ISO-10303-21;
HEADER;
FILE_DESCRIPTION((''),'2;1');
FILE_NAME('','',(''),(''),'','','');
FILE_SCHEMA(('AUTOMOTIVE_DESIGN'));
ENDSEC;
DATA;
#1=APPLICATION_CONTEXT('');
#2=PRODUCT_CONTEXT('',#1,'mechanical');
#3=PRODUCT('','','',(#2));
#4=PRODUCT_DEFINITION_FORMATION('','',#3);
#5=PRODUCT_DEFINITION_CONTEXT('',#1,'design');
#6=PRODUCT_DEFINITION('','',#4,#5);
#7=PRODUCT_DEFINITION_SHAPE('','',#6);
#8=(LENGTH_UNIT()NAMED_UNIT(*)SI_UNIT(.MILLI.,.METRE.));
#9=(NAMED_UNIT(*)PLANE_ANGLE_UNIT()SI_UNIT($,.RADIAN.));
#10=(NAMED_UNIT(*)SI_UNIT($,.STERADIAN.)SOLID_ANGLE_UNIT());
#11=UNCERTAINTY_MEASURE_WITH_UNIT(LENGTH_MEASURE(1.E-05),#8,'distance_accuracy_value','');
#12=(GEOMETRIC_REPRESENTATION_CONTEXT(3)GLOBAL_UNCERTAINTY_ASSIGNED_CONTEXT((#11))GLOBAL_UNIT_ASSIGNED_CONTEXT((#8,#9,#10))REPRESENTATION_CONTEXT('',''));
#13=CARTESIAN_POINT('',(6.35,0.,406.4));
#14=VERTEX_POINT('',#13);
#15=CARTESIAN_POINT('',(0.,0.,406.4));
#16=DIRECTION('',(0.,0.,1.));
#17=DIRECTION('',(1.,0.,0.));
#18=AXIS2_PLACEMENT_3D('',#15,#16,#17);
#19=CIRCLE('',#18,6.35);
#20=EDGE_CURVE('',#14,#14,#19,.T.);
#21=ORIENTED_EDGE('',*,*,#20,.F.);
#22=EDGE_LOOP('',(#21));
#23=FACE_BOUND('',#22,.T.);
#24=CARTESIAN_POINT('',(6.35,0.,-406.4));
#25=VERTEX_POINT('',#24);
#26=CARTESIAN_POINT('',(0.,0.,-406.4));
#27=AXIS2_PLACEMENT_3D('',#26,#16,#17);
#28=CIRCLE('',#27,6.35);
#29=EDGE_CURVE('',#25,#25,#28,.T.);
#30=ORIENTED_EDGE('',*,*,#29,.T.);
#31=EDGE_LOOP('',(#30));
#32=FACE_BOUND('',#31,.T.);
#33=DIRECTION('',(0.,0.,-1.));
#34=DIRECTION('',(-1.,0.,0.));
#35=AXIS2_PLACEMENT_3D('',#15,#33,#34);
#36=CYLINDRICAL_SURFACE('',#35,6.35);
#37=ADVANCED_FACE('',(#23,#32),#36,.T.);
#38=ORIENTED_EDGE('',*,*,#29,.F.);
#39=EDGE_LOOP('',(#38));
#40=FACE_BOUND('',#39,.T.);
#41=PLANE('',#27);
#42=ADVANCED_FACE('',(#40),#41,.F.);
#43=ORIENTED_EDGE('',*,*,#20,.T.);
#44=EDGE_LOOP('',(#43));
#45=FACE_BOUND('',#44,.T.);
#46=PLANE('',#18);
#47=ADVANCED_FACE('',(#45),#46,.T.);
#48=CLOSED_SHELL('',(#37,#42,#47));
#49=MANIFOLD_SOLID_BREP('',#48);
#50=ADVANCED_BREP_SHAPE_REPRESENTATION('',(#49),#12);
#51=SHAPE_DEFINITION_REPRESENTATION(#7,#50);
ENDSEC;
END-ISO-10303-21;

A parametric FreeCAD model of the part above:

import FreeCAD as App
import Part
import Sketcher
Q = App.Units.Quantity

doc = App.newDocument("Part")
body = doc.addObject("PartDesign::Body", "Body")

# Sketch on XY plane
sketch1 = body.newObject("Sketcher::SketchObject", "Sketch")
sketch1.AttachmentSupport = (doc.getObject("XY_Plane"), [""])
sketch1.MapMode = "FlatFace"
sketch1.addGeometry(Part.Circle(App.Vector(0, 0, 0), App.Vector(0, 0, 1), 6), False)
sketch1.addConstraint([
    Sketcher.Constraint("Coincident", 0, 3, -1, 1),
    Sketcher.Constraint("Diameter", 0, Q("0.5 in")),
])
pad1 = body.newObject("PartDesign::Pad", "Pad")
pad1.Profile = sketch1
pad1.Length = Q("32 in")
pad1.Midplane = True

doc.recompute()
